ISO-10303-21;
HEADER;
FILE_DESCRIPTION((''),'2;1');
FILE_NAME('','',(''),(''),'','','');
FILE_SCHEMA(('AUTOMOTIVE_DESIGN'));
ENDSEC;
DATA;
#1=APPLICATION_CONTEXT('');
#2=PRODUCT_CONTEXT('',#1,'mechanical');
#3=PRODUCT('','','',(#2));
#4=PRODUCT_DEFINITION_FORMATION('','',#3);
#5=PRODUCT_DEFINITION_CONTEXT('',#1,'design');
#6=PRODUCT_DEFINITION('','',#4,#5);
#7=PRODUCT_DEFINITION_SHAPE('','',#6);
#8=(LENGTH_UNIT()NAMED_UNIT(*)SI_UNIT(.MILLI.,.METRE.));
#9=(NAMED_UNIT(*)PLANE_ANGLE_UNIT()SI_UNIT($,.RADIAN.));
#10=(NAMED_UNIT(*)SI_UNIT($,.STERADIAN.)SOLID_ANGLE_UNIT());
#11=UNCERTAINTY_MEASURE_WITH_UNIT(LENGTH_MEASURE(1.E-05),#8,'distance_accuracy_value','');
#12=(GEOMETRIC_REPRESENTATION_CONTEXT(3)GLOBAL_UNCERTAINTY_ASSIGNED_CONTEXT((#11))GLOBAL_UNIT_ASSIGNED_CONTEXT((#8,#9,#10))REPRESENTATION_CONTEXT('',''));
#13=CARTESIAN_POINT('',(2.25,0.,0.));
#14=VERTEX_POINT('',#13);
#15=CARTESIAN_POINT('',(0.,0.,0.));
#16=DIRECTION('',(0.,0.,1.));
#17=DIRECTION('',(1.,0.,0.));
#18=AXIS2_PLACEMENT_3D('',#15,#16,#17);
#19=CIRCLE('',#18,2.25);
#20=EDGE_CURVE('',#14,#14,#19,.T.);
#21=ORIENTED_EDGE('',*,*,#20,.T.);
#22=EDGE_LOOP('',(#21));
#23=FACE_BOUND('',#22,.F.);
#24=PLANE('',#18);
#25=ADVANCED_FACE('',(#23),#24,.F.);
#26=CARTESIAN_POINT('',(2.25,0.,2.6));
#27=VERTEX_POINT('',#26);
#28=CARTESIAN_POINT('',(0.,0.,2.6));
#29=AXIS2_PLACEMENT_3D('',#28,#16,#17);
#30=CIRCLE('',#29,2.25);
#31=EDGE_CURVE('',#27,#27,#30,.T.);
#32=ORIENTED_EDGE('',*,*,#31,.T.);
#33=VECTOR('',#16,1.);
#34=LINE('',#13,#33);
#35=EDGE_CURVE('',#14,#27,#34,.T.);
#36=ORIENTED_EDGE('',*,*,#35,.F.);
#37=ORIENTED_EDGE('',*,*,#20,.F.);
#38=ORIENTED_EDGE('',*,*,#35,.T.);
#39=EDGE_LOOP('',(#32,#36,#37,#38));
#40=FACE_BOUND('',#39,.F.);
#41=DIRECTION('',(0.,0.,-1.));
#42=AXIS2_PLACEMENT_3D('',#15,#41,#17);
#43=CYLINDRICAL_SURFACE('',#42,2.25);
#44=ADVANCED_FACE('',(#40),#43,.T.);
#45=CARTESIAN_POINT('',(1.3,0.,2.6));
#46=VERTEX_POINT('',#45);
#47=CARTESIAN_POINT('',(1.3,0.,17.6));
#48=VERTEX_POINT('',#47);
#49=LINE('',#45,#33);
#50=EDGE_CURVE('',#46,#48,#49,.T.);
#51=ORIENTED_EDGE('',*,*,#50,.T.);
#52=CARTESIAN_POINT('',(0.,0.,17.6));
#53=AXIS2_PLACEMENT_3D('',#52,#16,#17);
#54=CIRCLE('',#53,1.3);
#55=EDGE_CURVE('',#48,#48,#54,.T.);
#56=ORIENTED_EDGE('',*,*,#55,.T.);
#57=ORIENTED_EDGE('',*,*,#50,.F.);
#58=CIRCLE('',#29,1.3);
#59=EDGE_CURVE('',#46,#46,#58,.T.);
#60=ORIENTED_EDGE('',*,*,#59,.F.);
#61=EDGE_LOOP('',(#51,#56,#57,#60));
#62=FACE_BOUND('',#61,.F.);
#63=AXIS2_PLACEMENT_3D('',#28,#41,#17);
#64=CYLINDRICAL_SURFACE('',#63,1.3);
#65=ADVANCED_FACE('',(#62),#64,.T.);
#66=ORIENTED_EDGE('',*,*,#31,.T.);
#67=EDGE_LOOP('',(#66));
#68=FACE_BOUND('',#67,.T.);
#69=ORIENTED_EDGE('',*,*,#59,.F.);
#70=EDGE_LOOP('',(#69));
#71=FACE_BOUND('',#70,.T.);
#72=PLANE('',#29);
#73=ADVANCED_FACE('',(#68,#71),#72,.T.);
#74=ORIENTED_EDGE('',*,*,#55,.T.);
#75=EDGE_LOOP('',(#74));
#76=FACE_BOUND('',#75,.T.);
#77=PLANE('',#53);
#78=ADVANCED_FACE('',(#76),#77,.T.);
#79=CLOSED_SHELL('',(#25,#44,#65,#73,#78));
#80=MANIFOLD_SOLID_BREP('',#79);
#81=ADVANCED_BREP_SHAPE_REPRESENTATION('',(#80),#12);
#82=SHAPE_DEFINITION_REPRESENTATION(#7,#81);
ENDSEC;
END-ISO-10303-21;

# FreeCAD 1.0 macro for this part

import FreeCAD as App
import Part
import Sketcher

V = App.Vector

doc = App.newDocument("Part")
body = doc.addObject("PartDesign::Body", "Body")

# Sketch on XY plane
sketch1 = body.newObject("Sketcher::SketchObject", "Sketch")
sketch1.AttachmentSupport = (doc.getObject("XY_Plane"), [""])
sketch1.MapMode = "FlatFace"
sketch1.addGeometry(Part.Circle(V(0, 0, 0), V(0, 0, 1), 2.2), False)
sketch1.addConstraint(Sketcher.Constraint("Coincident", 0, 3, -1, 1))
sketch1.addConstraint(Sketcher.Constraint("Diameter", 0, 4.5))
pad1 = body.newObject("PartDesign::Pad", "Pad")
pad1.Profile = sketch1
pad1.Length = 2.6

# Sketch on XY plane
sketch2 = body.newObject("Sketcher::SketchObject", "Sketch001")
sketch2.AttachmentSupport = (doc.getObject("XY_Plane"), [""])
sketch2.MapMode = "FlatFace"
sketch2.AttachmentOffset = App.Placement(V(0, 0, 2.6), App.Rotation())
sketch2.addGeometry(Part.Circle(V(0, 0, 0), V(0, 0, 1), 1.3), False)
sketch2.addConstraint(Sketcher.Constraint("Coincident", 0, 3, -1, 1))
sketch2.addConstraint(Sketcher.Constraint("Diameter", 0, 2.6))
pad2 = body.newObject("PartDesign::Pad", "Pad001")
pad2.Profile = sketch2
pad2.Length = 15

doc.recompute()
